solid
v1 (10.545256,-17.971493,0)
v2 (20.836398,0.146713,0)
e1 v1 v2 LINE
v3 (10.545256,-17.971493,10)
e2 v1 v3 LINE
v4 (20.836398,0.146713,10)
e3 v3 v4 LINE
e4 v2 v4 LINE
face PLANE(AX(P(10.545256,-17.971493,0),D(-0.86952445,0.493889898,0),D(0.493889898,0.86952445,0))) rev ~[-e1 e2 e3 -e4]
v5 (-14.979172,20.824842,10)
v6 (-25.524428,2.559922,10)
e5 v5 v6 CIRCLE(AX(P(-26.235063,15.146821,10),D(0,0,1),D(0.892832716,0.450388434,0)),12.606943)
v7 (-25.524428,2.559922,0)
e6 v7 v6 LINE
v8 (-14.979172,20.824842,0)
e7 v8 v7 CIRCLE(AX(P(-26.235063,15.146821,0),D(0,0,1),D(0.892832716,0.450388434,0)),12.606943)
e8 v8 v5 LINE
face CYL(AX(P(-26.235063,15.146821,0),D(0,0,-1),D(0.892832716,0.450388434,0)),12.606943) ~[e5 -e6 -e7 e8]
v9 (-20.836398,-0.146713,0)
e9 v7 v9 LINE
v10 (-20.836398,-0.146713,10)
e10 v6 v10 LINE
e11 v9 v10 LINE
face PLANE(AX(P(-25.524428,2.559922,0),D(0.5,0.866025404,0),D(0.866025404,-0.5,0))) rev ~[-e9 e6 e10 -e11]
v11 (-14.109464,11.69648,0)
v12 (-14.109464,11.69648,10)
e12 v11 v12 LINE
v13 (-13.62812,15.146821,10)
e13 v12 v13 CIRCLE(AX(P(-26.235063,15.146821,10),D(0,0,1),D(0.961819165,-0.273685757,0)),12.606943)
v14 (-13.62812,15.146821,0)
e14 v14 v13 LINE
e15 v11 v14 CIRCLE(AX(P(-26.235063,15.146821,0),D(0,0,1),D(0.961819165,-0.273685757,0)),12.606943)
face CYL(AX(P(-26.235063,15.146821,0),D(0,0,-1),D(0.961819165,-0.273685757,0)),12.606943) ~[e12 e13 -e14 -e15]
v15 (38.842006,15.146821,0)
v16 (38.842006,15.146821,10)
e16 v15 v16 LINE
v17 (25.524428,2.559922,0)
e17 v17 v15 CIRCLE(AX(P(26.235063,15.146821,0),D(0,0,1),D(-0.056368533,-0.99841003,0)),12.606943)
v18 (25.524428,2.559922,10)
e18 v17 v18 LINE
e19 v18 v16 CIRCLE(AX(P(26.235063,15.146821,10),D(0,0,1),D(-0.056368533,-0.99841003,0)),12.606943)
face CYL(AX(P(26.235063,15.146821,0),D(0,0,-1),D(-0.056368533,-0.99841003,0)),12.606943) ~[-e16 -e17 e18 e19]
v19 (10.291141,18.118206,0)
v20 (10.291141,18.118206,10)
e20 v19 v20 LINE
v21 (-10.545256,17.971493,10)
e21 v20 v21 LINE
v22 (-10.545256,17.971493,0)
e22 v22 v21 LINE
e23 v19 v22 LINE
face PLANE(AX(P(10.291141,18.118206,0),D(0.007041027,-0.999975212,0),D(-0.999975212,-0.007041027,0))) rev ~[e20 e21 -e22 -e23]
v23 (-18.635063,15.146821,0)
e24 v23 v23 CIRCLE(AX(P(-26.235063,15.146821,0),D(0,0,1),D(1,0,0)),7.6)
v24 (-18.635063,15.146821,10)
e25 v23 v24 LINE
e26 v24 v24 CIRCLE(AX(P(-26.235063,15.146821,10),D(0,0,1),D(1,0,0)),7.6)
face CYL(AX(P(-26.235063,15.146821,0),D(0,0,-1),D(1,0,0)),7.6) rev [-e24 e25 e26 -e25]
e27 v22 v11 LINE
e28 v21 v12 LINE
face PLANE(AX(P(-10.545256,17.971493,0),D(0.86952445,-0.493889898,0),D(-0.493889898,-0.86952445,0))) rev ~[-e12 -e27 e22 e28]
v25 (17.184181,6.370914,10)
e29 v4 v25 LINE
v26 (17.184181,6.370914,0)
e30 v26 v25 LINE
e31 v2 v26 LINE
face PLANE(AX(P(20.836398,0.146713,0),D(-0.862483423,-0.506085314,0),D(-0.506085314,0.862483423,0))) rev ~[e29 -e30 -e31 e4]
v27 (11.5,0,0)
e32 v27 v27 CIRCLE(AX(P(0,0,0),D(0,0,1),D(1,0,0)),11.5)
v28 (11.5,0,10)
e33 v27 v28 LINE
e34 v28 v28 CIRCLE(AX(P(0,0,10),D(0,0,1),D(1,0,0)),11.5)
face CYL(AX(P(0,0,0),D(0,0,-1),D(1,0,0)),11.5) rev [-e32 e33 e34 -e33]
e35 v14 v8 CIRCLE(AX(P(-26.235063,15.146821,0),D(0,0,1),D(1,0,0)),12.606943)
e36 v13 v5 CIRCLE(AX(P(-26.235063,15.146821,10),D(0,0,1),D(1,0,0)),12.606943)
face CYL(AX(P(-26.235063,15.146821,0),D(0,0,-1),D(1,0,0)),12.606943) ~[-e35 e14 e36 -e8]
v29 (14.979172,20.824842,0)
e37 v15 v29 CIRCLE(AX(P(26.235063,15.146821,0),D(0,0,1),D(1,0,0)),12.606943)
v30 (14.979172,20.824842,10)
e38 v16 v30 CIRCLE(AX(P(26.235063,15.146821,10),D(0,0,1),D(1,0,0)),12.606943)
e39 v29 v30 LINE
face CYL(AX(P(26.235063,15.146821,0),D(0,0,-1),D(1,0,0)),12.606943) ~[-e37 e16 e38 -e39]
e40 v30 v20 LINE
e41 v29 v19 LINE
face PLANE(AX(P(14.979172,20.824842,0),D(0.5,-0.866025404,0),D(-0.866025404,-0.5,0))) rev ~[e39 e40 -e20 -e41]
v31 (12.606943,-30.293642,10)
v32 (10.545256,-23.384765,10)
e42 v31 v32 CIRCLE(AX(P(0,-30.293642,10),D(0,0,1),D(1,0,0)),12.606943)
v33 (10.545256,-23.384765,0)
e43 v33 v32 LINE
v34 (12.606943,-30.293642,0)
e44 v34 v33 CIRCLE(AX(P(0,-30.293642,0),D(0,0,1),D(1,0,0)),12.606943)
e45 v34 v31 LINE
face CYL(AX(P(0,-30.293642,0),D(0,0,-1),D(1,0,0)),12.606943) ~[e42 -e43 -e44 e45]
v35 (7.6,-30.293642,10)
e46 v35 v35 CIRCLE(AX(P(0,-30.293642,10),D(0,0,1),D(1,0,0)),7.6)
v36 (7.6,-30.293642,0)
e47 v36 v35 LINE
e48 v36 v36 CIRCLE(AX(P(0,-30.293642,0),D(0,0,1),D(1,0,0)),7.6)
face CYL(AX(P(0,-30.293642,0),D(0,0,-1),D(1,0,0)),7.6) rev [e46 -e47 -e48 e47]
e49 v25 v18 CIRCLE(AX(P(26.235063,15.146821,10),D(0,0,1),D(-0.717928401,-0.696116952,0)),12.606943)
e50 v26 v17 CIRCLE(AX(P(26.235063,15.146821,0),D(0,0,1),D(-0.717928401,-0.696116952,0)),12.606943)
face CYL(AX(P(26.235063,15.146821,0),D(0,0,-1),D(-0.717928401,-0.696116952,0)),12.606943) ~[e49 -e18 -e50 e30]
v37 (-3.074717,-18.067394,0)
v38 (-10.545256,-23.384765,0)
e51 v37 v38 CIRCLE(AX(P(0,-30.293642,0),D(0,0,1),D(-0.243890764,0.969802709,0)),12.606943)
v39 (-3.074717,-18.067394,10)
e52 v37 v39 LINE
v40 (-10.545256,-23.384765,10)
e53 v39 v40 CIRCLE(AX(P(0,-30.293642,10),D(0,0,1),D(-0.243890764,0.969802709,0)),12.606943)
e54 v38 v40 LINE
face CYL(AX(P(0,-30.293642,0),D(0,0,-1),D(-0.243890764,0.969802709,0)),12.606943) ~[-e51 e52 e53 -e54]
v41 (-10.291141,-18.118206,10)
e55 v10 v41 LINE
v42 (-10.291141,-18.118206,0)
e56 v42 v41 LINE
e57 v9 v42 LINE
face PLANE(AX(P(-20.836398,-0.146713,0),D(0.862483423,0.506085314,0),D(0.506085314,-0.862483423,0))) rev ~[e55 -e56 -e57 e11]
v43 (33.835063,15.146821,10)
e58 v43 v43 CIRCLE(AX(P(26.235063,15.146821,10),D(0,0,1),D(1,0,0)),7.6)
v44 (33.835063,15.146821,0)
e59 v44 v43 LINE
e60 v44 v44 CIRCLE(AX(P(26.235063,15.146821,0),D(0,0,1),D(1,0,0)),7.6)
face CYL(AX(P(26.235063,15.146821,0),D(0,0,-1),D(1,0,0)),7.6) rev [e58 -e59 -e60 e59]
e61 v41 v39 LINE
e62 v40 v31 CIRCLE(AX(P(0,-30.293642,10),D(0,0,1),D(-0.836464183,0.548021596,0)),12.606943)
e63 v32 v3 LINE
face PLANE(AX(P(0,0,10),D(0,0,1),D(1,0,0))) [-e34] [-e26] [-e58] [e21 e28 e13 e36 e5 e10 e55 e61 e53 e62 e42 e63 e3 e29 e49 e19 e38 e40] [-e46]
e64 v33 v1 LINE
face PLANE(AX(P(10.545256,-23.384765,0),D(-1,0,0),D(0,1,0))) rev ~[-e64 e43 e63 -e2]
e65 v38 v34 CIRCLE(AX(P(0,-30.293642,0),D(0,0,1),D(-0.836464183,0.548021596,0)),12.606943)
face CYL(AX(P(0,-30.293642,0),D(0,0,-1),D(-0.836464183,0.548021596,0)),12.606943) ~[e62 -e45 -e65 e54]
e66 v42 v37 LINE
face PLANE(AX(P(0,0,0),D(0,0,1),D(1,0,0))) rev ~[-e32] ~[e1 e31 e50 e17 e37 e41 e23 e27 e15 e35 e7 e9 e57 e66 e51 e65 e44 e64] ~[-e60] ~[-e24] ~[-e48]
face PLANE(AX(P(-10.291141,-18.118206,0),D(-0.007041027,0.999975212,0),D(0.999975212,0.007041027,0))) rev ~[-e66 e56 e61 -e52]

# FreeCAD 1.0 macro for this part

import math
import FreeCAD as App
import Part
import Sketcher

V = App.Vector
Q = App.Units.Quantity

doc = App.newDocument("Part")
body = doc.addObject("PartDesign::Body", "Body")

# Sketch on XY plane
sketch1 = body.newObject("Sketcher::SketchObject", "Sketch")
sketch1.AttachmentSupport = (doc.getObject("XY_Plane"), [""])
sketch1.MapMode = "FlatFace"
sketch1.addGeometry([
    Part.LineSegment(V(10.3, 18.1, 0), V(-10.5, 18, 0)),  # 0
    Part.LineSegment(V(-10.5, 18, 0), V(-14.1, 11.7, 0)),  # 1
    Part.ArcOfCircle(Part.Circle(V(-26.2, 15.1, 0), V(0, 0, 1), 12.6), math.radians(-15.88), math.radians(0)),  # 2
    Part.ArcOfCircle(Part.Circle(V(-26.2, 15.1, 0), V(0, 0, 1), 12.6), math.radians(0), math.radians(27)),  # 3
    Part.ArcOfCircle(Part.Circle(V(-26.2, 15.1, 0), V(0, 0, 1), 12.6), math.radians(27), math.radians(273)),  # 4
    Part.LineSegment(V(-25.5, 2.6, 0), V(-20.8, -0.1, 0)),  # 5
    Part.LineSegment(V(-20.8, -0.1, 0), V(-10.3, -18.1, 0)),  # 6
    Part.LineSegment(V(-10.3, -18.1, 0), V(-3.1, -18.1, 0)),  # 7
    Part.ArcOfCircle(Part.Circle(V(0, -30.3, 0), V(0, 0, 1), 12.6), math.radians(104), math.radians(147)),  # 8
    Part.ArcOfCircle(Part.Circle(V(0, -30.3, 0), V(0, 0, 1), 12.6), math.radians(147), math.radians(360)),  # 9
    Part.ArcOfCircle(Part.Circle(V(0, -30.3, 0), V(0, 0, 1), 12.6), math.radians(0), math.radians(33)),  # 10
    Part.LineSegment(V(10.5, -23.4, 0), V(10.5, -18, 0)),  # 11
    Part.LineSegment(V(10.5, -18, 0), V(20.8, 0.1, 0)),  # 12
    Part.LineSegment(V(20.8, 0.1, 0), V(17.2, 6.4, 0)),  # 13
    Part.ArcOfCircle(Part.Circle(V(26.2, 15.1, 0), V(0, 0, 1), 12.6), math.radians(-136), math.radians(-93)),  # 14
    Part.ArcOfCircle(Part.Circle(V(26.2, 15.1, 0), V(0, 0, 1), 12.6), math.radians(-93), math.radians(0)),  # 15
    Part.ArcOfCircle(Part.Circle(V(26.2, 15.1, 0), V(0, 0, 1), 12.6), math.radians(0), math.radians(153)),  # 16
    Part.LineSegment(V(15, 20.8, 0), V(10.3, 18.1, 0)),  # 17
    Part.Circle(V(0, -30.3, 0), V(0, 0, 1), 7.6),  # 18
    Part.Circle(V(-26.2, 15.1, 0), V(0, 0, 1), 7.6),  # 19
    Part.Circle(V(0, 0, 0), V(0, 0, 1), 11.5),  # 20
    Part.Circle(V(26.2, 15.1, 0), V(0, 0, 1), 7.6),  # 21
], False)
sketch1.addConstraint([
    Sketcher.Constraint("Coincident", 0, 2, 1, 1),
    Sketcher.Constraint("Coincident", 1, 2, 2, 1),
    Sketcher.Constraint("Tangent", 2, 2, 3, 1),
    Sketcher.Constraint("Tangent", 3, 2, 4, 1),
    Sketcher.Constraint("Coincident", 4, 2, 5, 1),
    Sketcher.Constraint("Coincident", 5, 2, 6, 1),
    Sketcher.Constraint("Coincident", 6, 2, 7, 1),
    Sketcher.Constraint("Coincident", 7, 2, 8, 1),
    Sketcher.Constraint("Tangent", 8, 2, 9, 1),
    Sketcher.Constraint("Tangent", 9, 2, 10, 1),
    Sketcher.Constraint("Coincident", 10, 2, 11, 1),
    Sketcher.Constraint("Coincident", 11, 2, 12, 1),
    Sketcher.Constraint("Coincident", 12, 2, 13, 1),
    Sketcher.Constraint("Coincident", 13, 2, 14, 1),
    Sketcher.Constraint("Tangent", 14, 2, 15, 1),
    Sketcher.Constraint("Tangent", 15, 2, 16, 1),
    Sketcher.Constraint("Coincident", 16, 2, 17, 1),
    Sketcher.Constraint("Coincident", 17, 2, 0, 1),
    Sketcher.Constraint("Vertical", 11),
    Sketcher.Constraint("Coincident", 20, 3, -1, 1),
    Sketcher.Constraint("Coincident", 4, 3, 2, 3),
    Sketcher.Constraint("Coincident", 10, 3, 8, 3),
    Sketcher.Constraint("Coincident", 16, 3, 14, 3),
    Sketcher.Constraint("Coincident", 18, 3, 8, 3),
    Sketcher.Constraint("Coincident", 19, 3, 2, 3),
    Sketcher.Constraint("Coincident", 21, 3, 14, 3),
    Sketcher.Constraint("Equal", 4, 8),
    Sketcher.Constraint("Equal", 10, 14),
    Sketcher.Constraint("Equal", 18, 19),
    Sketcher.Constraint("Equal", 19, 21),
    Sketcher.Constraint("Symmetric", 0, 2, 11, 2, -1, 1),
    Sketcher.Constraint("Symmetric", 5, 2, 12, 2, -1, 1),
    Sketcher.Constraint("Symmetric", 6, 2, 17, 2, -1, 1),
    Sketcher.Constraint("Symmetric", 2, 3, 14, 3, -2),
    Sketcher.Constraint("Symmetric", 8, 2, 10, 2, -2),
    Sketcher.Constraint("Parallel", 0, 7),
    Sketcher.Constraint("Parallel", 1, 12),
    Sketcher.Constraint("Parallel", 6, 13),
    Sketcher.Constraint("Horizontal", 21, 3, 2, 2),
    Sketcher.Constraint("Horizontal", 18, 3, 9, 2),
    Sketcher.Constraint("Horizontal", 4, 2, 14, 2),
    Sketcher.Constraint("Horizontal", 2, 2, 15, 2),
    Sketcher.Constraint("Horizontal", 3, 2, 16, 2),
    Sketcher.Constraint("Equal", 0, 6),
    Sketcher.Constraint("Equal", 1, 7),
    Sketcher.Constraint("Equal", 6, 12),
    Sketcher.Constraint("Equal", 7, 13),
    Sketcher.Constraint("Equal", 5, 17),
    Sketcher.Constraint("Diameter", 20, 23.0),
    Sketcher.Constraint("Diameter", 18, 15.2),
    Sketcher.Constraint("Angle", 5, Q("-30 deg")),
    Sketcher.Constraint("Angle", 17, Q("-150 deg")),
    Sketcher.Constraint("Radius", 2, 12.606943),
    Sketcher.Constraint("DistanceY", 11, 1, 11, 2, 5.413271),
    Sketcher.Constraint("DistanceX", 4, 3, 1, 2, 12.125599),
    Sketcher.Constraint("DistanceY", 4, 2, 4, 3, 12.586898),
    Sketcher.Constraint("DistanceY", 7, 2, 11, 2, 0.095901),
])
pad1 = body.newObject("PartDesign::Pad", "Pad")
pad1.Profile = sketch1
pad1.Length = 10

doc.recompute()
